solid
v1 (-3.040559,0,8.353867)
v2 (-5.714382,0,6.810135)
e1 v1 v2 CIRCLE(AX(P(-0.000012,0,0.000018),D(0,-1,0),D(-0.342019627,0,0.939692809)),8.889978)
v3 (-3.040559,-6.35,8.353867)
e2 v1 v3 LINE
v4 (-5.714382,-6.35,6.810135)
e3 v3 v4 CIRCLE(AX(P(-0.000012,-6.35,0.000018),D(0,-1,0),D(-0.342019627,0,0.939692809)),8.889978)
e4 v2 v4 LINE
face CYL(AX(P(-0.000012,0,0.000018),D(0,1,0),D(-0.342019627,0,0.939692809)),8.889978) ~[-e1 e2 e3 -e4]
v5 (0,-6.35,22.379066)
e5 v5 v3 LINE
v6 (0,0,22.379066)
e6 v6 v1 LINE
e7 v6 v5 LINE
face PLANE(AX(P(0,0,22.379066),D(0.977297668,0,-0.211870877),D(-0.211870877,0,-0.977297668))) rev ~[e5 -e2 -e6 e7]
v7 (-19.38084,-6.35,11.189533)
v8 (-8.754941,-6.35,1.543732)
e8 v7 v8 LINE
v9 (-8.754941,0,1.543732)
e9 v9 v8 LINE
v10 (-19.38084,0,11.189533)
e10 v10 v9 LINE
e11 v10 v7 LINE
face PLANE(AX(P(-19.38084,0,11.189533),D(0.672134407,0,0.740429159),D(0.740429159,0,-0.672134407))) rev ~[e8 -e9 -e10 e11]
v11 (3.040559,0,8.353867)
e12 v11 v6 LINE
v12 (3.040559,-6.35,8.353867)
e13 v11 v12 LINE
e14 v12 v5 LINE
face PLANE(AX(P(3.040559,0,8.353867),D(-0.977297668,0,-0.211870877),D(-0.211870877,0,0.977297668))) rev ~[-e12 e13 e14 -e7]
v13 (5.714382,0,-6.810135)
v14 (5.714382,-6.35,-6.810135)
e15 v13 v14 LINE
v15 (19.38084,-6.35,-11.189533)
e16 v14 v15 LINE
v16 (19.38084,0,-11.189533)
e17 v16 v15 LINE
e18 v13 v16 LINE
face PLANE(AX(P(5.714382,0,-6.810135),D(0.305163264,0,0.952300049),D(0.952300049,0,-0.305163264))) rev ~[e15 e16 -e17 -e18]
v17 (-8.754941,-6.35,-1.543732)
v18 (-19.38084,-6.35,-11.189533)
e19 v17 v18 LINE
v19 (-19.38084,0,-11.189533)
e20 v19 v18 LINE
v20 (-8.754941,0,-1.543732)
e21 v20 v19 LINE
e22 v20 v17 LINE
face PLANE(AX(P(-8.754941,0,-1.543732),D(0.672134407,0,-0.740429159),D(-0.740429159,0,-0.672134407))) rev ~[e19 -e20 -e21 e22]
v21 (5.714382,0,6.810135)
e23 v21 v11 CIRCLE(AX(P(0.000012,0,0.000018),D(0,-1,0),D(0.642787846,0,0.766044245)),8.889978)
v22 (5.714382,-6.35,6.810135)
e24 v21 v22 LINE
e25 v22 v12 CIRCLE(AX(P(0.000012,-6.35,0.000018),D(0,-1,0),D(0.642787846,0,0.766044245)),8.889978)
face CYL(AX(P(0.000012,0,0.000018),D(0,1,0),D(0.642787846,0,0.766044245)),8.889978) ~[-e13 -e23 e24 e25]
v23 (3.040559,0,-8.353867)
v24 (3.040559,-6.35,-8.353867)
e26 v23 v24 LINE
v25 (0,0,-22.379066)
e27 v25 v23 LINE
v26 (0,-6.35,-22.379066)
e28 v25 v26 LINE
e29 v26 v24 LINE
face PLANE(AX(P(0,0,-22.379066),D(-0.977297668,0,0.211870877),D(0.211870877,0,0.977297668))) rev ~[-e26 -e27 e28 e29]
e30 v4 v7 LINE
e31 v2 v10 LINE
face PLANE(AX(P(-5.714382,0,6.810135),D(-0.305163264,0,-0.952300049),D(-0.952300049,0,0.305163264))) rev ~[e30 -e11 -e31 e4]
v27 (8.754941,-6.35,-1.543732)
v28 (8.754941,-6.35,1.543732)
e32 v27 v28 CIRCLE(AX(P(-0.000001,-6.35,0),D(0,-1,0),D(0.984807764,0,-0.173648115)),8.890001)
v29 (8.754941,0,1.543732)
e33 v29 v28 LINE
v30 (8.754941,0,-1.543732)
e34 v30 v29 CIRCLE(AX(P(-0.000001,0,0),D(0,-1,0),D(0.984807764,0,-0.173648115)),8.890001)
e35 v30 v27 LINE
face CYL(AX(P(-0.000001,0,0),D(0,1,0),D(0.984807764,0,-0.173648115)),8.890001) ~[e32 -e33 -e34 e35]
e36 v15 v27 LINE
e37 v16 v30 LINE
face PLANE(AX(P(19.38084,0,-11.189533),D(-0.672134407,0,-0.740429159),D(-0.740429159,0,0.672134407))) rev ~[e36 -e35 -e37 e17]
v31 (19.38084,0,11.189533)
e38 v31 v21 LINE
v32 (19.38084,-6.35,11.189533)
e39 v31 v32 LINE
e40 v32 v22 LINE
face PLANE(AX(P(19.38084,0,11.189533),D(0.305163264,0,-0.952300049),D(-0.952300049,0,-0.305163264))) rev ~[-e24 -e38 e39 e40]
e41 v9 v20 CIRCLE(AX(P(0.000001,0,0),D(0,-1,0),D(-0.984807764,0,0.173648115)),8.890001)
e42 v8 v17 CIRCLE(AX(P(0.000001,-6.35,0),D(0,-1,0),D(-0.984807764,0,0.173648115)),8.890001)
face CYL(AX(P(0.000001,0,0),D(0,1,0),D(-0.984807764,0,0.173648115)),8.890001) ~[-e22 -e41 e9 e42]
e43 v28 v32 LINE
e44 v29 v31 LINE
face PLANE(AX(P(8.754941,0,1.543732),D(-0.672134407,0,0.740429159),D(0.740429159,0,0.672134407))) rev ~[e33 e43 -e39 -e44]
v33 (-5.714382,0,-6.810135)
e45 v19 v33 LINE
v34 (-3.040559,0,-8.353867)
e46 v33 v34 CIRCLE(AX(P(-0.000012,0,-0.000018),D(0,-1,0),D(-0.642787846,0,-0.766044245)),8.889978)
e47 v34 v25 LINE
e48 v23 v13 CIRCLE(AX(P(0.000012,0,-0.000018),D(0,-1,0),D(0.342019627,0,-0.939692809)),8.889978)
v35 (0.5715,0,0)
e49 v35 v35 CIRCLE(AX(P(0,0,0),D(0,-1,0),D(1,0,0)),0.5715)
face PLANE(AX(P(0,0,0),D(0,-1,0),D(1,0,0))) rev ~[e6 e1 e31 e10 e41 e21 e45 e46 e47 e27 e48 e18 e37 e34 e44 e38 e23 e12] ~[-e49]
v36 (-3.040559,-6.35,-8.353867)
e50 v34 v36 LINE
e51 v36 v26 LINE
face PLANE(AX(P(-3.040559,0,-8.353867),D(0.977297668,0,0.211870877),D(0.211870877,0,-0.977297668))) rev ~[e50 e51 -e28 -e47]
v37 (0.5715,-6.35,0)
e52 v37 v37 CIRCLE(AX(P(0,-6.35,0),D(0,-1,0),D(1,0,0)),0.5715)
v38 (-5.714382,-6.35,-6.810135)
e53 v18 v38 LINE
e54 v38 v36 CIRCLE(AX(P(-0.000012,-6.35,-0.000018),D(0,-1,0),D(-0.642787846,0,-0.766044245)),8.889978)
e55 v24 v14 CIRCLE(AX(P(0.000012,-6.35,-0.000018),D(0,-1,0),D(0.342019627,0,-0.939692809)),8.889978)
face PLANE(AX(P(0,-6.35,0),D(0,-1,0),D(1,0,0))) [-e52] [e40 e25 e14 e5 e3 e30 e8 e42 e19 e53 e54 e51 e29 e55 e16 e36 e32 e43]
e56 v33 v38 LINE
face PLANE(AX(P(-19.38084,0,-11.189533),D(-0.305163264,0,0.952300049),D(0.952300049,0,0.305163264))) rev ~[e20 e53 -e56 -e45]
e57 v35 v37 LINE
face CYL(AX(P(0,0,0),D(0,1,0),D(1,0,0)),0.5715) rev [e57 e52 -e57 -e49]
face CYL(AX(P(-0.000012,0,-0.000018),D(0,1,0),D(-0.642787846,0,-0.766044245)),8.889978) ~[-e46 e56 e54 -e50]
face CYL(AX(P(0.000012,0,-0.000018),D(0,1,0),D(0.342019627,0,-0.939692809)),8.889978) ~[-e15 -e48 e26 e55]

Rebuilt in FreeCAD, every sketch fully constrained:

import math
import FreeCAD as App
import Part
import Sketcher
Q = App.Units.Quantity

doc = App.newDocument("Part")
body = doc.addObject("PartDesign::Body", "Body")

# Sketch on XZ plane
sketch1 = doc.addObject("Sketcher::SketchObject", "Sketch")
body.addObject(sketch1)
sketch1.AttachmentSupport = (doc.XZ_Plane, [""])
sketch1.MapMode = "FlatFace"
sketch1.addGeometry([
    Part.LineSegment(App.Vector(0, 22.379066, 0), App.Vector(-3.040559, 8.353867, 0)),  # 0
    Part.ArcOfCircle(Part.Circle(App.Vector(-0.000012, 0.000018, 0), App.Vector(0, 0, 1), 8.889978), math.radians(109.999969), math.radians(130.000018)),  # 1
    Part.LineSegment(App.Vector(-5.714382, 6.810135, 0), App.Vector(-19.38084, 11.189533, 0)),  # 2
    Part.LineSegment(App.Vector(-19.38084, 11.189533, 0), App.Vector(-8.754941, 1.543732, 0)),  # 3
    Part.ArcOfCircle(Part.Circle(App.Vector(0.000001, 0, 0), App.Vector(0, 0, 1), 8.890001), math.radians(170.000004), math.radians(189.999996)),  # 4
    Part.LineSegment(App.Vector(-8.754941, -1.543732, 0), App.Vector(-19.38084, -11.189533, 0)),  # 5
    Part.LineSegment(App.Vector(-19.38084, -11.189533, 0), App.Vector(-5.714382, -6.810135, 0)),  # 6
    Part.ArcOfCircle(Part.Circle(App.Vector(-0.000012, -0.000018, 0), App.Vector(0, 0, 1), 8.889978), math.radians(-130.000018), math.radians(-109.999969)),  # 7
    Part.LineSegment(App.Vector(-3.040559, -8.353867, 0), App.Vector(0, -22.379066, 0)),  # 8
    Part.LineSegment(App.Vector(0, -22.379066, 0), App.Vector(3.040559, -8.353867, 0)),  # 9
    Part.ArcOfCircle(Part.Circle(App.Vector(0.000012, -0.000018, 0), App.Vector(0, 0, 1), 8.889978), math.radians(-70.000031), math.radians(-49.999982)),  # 10
    Part.LineSegment(App.Vector(5.714382, -6.810135, 0), App.Vector(19.38084, -11.189533, 0)),  # 11
    Part.LineSegment(App.Vector(19.38084, -11.189533, 0), App.Vector(8.754941, -1.543732, 0)),  # 12
    Part.ArcOfCircle(Part.Circle(App.Vector(-0.000001, 0, 0), App.Vector(0, 0, 1), 8.890001), math.radians(-9.999996), math.radians(9.999996)),  # 13
    Part.LineSegment(App.Vector(8.754941, 1.543732, 0), App.Vector(19.38084, 11.189533, 0)),  # 14
    Part.LineSegment(App.Vector(19.38084, 11.189533, 0), App.Vector(5.714382, 6.810135, 0)),  # 15
    Part.ArcOfCircle(Part.Circle(App.Vector(0.000012, 0.000018, 0), App.Vector(0, 0, 1), 8.889978), math.radians(49.999982), math.radians(70.000031)),  # 16
    Part.LineSegment(App.Vector(3.040559, 8.353867, 0), App.Vector(0, 22.379066, 0)),  # 17
    Part.Circle(App.Vector(0, 0, 0), App.Vector(0, 0, 1), 0.5715),  # 18
], False)
sketch1.addConstraint([
    Sketcher.Constraint("Coincident", 0, 2, 1, 1),
    Sketcher.Constraint("Coincident", 1, 2, 2, 1),
    Sketcher.Constraint("Coincident", 2, 2, 3, 1),
    Sketcher.Constraint("Coincident", 3, 2, 4, 1),
    Sketcher.Constraint("Coincident", 4, 2, 5, 1),
    Sketcher.Constraint("Coincident", 5, 2, 6, 1),
    Sketcher.Constraint("Coincident", 6, 2, 7, 1),
    Sketcher.Constraint("Coincident", 7, 2, 8, 1),
    Sketcher.Constraint("Coincident", 8, 2, 9, 1),
    Sketcher.Constraint("Coincident", 9, 2, 10, 1),
    Sketcher.Constraint("Coincident", 10, 2, 11, 1),
    Sketcher.Constraint("Coincident", 11, 2, 12, 1),
    Sketcher.Constraint("Coincident", 12, 2, 13, 1),
    Sketcher.Constraint("Coincident", 13, 2, 14, 1),
    Sketcher.Constraint("Coincident", 14, 2, 15, 1),
    Sketcher.Constraint("Coincident", 15, 2, 16, 1),
    Sketcher.Constraint("Coincident", 16, 2, 17, 1),
    Sketcher.Constraint("Coincident", 17, 2, 0, 1),
    Sketcher.Constraint("Coincident", 4, 3, -1, 1),
    Sketcher.Constraint("Coincident", 13, 3, -1, 1),
    Sketcher.Constraint("Coincident", 18, 3, -1, 1),
    Sketcher.Constraint("Equal", 1, 7),
    Sketcher.Constraint("Equal", 7, 10),
    Sketcher.Constraint("Equal", 4, 13),
    Sketcher.Constraint("Equal", 10, 16),
    Sketcher.Constraint("Symmetric", 1, 3, 10, 3, -1, 1),
    Sketcher.Constraint("Symmetric", 7, 3, 16, 3, -1, 1),
    Sketcher.Constraint("Symmetric", 2, 2, 11, 2, -1, 1),
    Sketcher.Constraint("Symmetric", 5, 2, 14, 2, -1, 1),
    Sketcher.Constraint("Symmetric", 8, 2, 17, 2, -1, 1),
    Sketcher.Constraint("Symmetric", 7, 3, 10, 3, -2),
    Sketcher.Constraint("Symmetric", 5, 2, 11, 2, -2),
    Sketcher.Constraint("PointOnObject", 8, 2, -2),
    Sketcher.Constraint("Parallel", 0, 9),
    Sketcher.Constraint("Parallel", 2, 11),
    Sketcher.Constraint("Parallel", 3, 12),
    Sketcher.Constraint("Parallel", 5, 14),
    Sketcher.Constraint("Parallel", 6, 15),
    Sketcher.Constraint("Parallel", 8, 17),
    Sketcher.Constraint("Horizontal", 7, 2, 9, 2),
    Sketcher.Constraint("Horizontal", 6, 2, 10, 2),
    Sketcher.Constraint("Horizontal", 4, 2, 12, 2),
    Sketcher.Constraint("Equal", 0, 2),
    Sketcher.Constraint("Equal", 2, 3),
    Sketcher.Constraint("Radius", 4, Q("0.3500001 in")),
    Sketcher.Constraint("Diameter", 18, Q("0.045 in")),
    Sketcher.Constraint("Distance", 0, Q("0.565 in")),
    Sketcher.Constraint("Radius", 1, 8.889978),
    Sketcher.Constraint("DistanceX", 5, 2, 4, 2, 10.625899),
    Sketcher.Constraint("DistanceY", 8, 2, 7, 2, 14.025199),
    Sketcher.Constraint("DistanceX", 2, 2, -1, 1, 19.38084),
    Sketcher.Constraint("DistanceX", 6, 2, -1, 1, 5.714382),
    Sketcher.Constraint("DistanceY", 1, 3, 0, 2, 8.353849),
])
pad1 = doc.addObject("PartDesign::Pad", "Pad")
body.addObject(pad1)
pad1.Profile = sketch1
pad1.Length = Q("0.25 in")

doc.recompute()
